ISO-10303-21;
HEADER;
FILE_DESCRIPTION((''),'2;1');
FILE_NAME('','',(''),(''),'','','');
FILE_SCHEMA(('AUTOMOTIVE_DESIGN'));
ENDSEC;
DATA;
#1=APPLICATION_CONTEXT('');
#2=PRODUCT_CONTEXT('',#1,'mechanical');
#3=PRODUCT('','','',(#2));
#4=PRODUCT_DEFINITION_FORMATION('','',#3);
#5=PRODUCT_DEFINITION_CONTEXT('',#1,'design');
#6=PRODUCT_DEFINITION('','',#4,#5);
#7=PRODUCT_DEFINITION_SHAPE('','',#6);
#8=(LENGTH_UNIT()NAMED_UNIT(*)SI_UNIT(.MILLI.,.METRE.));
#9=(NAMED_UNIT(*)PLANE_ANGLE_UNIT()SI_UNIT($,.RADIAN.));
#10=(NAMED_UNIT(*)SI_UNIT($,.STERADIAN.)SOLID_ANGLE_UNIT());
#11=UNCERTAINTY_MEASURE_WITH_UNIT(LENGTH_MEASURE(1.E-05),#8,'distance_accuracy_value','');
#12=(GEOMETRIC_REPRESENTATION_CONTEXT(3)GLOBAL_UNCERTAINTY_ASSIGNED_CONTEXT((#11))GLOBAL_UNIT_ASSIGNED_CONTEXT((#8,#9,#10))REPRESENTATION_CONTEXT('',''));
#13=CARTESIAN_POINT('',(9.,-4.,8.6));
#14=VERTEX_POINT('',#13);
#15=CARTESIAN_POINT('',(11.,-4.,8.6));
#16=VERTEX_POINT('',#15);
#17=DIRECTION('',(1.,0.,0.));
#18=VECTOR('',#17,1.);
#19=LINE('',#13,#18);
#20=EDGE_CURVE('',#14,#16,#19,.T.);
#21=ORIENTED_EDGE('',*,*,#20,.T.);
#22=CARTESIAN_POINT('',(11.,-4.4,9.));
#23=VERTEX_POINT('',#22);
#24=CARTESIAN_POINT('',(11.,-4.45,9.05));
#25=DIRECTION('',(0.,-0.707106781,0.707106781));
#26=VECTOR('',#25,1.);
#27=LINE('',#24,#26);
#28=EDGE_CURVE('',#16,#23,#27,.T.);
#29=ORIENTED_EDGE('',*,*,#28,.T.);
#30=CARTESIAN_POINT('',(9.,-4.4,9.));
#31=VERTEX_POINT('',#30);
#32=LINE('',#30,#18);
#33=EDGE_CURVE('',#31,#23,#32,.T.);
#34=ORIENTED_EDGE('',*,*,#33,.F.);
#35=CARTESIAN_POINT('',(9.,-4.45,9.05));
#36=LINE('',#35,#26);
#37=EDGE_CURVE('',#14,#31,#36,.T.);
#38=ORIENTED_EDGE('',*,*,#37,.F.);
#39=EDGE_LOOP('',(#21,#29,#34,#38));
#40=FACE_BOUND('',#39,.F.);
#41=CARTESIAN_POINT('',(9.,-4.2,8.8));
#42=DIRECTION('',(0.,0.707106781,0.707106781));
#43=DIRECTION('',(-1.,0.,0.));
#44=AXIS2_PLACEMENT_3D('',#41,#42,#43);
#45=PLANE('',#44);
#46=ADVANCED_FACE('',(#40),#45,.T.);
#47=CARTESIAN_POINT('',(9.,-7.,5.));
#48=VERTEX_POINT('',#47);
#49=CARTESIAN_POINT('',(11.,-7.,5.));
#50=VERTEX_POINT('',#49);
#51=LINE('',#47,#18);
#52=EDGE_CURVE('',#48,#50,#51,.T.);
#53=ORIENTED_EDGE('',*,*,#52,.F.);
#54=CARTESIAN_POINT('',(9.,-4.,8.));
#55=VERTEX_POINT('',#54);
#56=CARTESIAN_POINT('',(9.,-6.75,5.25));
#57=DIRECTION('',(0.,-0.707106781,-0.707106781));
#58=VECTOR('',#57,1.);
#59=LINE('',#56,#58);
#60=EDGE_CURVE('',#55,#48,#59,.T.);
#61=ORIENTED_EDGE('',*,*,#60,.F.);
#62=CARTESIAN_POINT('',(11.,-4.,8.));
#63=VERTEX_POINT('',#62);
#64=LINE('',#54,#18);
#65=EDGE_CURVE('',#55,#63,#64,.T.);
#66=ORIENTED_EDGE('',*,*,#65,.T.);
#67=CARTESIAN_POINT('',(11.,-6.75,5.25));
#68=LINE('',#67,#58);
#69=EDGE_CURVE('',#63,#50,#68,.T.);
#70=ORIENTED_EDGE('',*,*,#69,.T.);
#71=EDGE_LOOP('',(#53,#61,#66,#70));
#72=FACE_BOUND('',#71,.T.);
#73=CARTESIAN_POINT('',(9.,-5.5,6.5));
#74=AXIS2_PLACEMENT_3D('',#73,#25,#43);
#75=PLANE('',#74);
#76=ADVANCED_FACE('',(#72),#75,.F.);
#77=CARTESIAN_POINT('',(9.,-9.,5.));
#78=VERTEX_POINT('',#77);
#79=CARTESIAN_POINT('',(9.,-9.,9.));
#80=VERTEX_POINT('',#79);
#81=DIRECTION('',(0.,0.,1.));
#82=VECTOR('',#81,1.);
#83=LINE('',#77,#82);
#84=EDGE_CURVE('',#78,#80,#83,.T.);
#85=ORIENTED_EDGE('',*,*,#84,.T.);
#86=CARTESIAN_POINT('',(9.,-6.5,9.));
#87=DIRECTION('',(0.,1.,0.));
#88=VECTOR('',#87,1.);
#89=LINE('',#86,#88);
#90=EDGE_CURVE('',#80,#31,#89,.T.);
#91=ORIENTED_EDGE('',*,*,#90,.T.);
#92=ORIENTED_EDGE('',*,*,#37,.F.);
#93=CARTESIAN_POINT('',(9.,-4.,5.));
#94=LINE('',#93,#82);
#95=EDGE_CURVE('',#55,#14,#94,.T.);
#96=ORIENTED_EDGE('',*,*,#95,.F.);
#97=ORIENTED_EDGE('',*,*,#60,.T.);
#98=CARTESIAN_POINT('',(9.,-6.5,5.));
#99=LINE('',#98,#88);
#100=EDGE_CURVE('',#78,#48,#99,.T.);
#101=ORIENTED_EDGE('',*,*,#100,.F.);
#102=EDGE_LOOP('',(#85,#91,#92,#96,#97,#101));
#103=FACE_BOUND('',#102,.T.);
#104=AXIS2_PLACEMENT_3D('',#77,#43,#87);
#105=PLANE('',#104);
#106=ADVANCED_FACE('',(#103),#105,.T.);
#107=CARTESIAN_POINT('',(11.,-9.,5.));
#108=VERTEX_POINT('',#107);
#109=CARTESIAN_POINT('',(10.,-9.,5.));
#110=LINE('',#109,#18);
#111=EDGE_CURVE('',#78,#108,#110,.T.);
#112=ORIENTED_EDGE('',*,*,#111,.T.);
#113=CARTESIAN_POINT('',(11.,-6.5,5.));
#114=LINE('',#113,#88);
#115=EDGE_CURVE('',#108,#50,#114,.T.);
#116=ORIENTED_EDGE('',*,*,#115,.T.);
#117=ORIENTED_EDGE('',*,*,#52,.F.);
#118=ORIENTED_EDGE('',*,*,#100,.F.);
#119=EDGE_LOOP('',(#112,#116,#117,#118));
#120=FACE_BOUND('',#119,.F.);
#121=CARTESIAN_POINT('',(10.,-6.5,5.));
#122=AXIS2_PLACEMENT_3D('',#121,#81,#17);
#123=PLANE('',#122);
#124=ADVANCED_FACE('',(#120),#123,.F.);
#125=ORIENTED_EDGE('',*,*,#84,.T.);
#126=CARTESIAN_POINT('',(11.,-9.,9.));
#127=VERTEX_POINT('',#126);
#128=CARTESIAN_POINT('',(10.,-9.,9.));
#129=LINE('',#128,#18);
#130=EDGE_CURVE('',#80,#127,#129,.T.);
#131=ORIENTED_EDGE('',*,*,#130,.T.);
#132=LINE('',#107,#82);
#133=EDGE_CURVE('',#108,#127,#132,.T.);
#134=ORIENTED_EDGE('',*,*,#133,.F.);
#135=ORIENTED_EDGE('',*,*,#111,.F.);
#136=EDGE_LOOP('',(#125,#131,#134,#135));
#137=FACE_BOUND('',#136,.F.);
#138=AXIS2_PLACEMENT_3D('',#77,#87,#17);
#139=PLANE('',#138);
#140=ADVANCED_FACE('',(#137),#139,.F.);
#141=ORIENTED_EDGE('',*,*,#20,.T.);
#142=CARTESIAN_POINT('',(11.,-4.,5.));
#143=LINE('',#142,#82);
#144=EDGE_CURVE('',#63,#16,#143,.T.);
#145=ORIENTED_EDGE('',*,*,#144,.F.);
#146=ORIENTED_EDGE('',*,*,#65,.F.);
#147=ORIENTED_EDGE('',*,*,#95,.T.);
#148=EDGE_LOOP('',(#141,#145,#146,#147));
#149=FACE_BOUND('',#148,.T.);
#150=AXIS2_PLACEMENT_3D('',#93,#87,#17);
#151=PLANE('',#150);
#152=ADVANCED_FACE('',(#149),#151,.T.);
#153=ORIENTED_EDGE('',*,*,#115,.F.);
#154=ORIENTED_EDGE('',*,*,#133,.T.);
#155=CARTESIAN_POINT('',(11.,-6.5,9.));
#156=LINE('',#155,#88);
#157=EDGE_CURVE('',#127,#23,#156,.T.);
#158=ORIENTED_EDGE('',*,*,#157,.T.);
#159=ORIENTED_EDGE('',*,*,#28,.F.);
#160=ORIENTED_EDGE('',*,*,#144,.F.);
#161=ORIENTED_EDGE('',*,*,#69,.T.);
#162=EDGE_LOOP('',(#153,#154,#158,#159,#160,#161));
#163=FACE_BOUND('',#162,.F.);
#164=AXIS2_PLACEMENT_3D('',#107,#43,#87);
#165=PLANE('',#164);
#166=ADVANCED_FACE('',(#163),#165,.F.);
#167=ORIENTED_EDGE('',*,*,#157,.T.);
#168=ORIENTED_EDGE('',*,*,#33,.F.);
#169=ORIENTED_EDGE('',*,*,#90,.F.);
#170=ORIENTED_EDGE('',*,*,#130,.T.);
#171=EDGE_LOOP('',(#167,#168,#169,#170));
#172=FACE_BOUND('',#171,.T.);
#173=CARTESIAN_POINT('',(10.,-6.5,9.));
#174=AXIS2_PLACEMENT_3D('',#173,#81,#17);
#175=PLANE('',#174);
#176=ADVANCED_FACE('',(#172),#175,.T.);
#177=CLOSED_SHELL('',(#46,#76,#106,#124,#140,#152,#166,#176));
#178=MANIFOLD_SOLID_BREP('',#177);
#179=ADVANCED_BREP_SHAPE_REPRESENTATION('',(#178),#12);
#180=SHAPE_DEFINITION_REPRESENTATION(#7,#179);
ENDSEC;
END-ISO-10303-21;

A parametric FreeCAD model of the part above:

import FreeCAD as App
import Part
import Sketcher
Q = App.Units.Quantity


def edges_at(feature, points):
    """Names of the edges that pass closest to the given points."""
    edges = feature.Shape.Edges
    near = lambda p: min(range(len(edges)), key=lambda i: edges[i].distToShape(Part.Vertex(*p))[0])
    return sorted({f"Edge{near(p) + 1}" for p in points})

doc = App.newDocument("Part")
body = doc.addObject("PartDesign::Body", "Body")

# Sketch on XY plane
sketch1 = body.newObject("Sketcher::SketchObject", "Sketch")
sketch1.AttachmentSupport = (doc.getObject("XY_Plane"), [""])
sketch1.MapMode = "FlatFace"
sketch1.AttachmentOffset = App.Placement(App.Vector(0, 0, 7), App.Rotation())
sketch1.addGeometry([
    Part.LineSegment(App.Vector(9, 5, 0), App.Vector(9, 0, 0)),
    Part.LineSegment(App.Vector(9, 0, 0), App.Vector(11, 0, 0)),
    Part.LineSegment(App.Vector(11, 0, 0), App.Vector(11, 5, 0)),
    Part.LineSegment(App.Vector(11, 5, 0), App.Vector(9, 5, 0)),
], False)
sketch1.addConstraint([
    Sketcher.Constraint("Coincident", 0, 2, 1, 1),
    Sketcher.Constraint("Coincident", 1, 2, 2, 1),
    Sketcher.Constraint("Coincident", 2, 2, 3, 1),
    Sketcher.Constraint("Coincident", 3, 2, 0, 1),
    Sketcher.Constraint("Vertical", 0),
    Sketcher.Constraint("Horizontal", 1),
    Sketcher.Constraint("Vertical", 2),
    Sketcher.Constraint("Horizontal", 3),
    Sketcher.Constraint("PointOnObject", 0, 2, -1),
    Sketcher.Constraint("DistanceX", 1, 1, 1, 2, Q("2 mm")),
    Sketcher.Constraint("DistanceY", 0, 2, 0, 1, Q("5 mm")),
    Sketcher.Constraint("DistanceX", -1, 1, 0, 2, Q("9 mm")),
])
pad1 = body.newObject("PartDesign::Pad", "Pad")
pad1.Profile = sketch1
pad1.Length = 4
doc.recompute()

chamfer = body.newObject("PartDesign::Chamfer", "Chamfer")
chamfer.Base = (pad1, edges_at(pad1, [(10, 5, 7)]))
chamfer.Size = 3
body2 = doc.addObject("PartDesign::Body", "Body001")
doc.recompute()

body.Placement = App.Placement(App.Vector(0, -9, -2), App.Rotation(App.Vector(0, 0, 1), 0))
boolean = body2.newObject("PartDesign::Boolean", "Boolean")
boolean.Type = "Fuse"
boolean.addObjects([body])
doc.recompute()

chamfer2 = body2.newObject("PartDesign::Chamfer", "Chamfer001")
chamfer2.Base = (boolean, edges_at(boolean, [(10, -4, 9)]))
chamfer2.Size = 0.4

doc.recompute()
